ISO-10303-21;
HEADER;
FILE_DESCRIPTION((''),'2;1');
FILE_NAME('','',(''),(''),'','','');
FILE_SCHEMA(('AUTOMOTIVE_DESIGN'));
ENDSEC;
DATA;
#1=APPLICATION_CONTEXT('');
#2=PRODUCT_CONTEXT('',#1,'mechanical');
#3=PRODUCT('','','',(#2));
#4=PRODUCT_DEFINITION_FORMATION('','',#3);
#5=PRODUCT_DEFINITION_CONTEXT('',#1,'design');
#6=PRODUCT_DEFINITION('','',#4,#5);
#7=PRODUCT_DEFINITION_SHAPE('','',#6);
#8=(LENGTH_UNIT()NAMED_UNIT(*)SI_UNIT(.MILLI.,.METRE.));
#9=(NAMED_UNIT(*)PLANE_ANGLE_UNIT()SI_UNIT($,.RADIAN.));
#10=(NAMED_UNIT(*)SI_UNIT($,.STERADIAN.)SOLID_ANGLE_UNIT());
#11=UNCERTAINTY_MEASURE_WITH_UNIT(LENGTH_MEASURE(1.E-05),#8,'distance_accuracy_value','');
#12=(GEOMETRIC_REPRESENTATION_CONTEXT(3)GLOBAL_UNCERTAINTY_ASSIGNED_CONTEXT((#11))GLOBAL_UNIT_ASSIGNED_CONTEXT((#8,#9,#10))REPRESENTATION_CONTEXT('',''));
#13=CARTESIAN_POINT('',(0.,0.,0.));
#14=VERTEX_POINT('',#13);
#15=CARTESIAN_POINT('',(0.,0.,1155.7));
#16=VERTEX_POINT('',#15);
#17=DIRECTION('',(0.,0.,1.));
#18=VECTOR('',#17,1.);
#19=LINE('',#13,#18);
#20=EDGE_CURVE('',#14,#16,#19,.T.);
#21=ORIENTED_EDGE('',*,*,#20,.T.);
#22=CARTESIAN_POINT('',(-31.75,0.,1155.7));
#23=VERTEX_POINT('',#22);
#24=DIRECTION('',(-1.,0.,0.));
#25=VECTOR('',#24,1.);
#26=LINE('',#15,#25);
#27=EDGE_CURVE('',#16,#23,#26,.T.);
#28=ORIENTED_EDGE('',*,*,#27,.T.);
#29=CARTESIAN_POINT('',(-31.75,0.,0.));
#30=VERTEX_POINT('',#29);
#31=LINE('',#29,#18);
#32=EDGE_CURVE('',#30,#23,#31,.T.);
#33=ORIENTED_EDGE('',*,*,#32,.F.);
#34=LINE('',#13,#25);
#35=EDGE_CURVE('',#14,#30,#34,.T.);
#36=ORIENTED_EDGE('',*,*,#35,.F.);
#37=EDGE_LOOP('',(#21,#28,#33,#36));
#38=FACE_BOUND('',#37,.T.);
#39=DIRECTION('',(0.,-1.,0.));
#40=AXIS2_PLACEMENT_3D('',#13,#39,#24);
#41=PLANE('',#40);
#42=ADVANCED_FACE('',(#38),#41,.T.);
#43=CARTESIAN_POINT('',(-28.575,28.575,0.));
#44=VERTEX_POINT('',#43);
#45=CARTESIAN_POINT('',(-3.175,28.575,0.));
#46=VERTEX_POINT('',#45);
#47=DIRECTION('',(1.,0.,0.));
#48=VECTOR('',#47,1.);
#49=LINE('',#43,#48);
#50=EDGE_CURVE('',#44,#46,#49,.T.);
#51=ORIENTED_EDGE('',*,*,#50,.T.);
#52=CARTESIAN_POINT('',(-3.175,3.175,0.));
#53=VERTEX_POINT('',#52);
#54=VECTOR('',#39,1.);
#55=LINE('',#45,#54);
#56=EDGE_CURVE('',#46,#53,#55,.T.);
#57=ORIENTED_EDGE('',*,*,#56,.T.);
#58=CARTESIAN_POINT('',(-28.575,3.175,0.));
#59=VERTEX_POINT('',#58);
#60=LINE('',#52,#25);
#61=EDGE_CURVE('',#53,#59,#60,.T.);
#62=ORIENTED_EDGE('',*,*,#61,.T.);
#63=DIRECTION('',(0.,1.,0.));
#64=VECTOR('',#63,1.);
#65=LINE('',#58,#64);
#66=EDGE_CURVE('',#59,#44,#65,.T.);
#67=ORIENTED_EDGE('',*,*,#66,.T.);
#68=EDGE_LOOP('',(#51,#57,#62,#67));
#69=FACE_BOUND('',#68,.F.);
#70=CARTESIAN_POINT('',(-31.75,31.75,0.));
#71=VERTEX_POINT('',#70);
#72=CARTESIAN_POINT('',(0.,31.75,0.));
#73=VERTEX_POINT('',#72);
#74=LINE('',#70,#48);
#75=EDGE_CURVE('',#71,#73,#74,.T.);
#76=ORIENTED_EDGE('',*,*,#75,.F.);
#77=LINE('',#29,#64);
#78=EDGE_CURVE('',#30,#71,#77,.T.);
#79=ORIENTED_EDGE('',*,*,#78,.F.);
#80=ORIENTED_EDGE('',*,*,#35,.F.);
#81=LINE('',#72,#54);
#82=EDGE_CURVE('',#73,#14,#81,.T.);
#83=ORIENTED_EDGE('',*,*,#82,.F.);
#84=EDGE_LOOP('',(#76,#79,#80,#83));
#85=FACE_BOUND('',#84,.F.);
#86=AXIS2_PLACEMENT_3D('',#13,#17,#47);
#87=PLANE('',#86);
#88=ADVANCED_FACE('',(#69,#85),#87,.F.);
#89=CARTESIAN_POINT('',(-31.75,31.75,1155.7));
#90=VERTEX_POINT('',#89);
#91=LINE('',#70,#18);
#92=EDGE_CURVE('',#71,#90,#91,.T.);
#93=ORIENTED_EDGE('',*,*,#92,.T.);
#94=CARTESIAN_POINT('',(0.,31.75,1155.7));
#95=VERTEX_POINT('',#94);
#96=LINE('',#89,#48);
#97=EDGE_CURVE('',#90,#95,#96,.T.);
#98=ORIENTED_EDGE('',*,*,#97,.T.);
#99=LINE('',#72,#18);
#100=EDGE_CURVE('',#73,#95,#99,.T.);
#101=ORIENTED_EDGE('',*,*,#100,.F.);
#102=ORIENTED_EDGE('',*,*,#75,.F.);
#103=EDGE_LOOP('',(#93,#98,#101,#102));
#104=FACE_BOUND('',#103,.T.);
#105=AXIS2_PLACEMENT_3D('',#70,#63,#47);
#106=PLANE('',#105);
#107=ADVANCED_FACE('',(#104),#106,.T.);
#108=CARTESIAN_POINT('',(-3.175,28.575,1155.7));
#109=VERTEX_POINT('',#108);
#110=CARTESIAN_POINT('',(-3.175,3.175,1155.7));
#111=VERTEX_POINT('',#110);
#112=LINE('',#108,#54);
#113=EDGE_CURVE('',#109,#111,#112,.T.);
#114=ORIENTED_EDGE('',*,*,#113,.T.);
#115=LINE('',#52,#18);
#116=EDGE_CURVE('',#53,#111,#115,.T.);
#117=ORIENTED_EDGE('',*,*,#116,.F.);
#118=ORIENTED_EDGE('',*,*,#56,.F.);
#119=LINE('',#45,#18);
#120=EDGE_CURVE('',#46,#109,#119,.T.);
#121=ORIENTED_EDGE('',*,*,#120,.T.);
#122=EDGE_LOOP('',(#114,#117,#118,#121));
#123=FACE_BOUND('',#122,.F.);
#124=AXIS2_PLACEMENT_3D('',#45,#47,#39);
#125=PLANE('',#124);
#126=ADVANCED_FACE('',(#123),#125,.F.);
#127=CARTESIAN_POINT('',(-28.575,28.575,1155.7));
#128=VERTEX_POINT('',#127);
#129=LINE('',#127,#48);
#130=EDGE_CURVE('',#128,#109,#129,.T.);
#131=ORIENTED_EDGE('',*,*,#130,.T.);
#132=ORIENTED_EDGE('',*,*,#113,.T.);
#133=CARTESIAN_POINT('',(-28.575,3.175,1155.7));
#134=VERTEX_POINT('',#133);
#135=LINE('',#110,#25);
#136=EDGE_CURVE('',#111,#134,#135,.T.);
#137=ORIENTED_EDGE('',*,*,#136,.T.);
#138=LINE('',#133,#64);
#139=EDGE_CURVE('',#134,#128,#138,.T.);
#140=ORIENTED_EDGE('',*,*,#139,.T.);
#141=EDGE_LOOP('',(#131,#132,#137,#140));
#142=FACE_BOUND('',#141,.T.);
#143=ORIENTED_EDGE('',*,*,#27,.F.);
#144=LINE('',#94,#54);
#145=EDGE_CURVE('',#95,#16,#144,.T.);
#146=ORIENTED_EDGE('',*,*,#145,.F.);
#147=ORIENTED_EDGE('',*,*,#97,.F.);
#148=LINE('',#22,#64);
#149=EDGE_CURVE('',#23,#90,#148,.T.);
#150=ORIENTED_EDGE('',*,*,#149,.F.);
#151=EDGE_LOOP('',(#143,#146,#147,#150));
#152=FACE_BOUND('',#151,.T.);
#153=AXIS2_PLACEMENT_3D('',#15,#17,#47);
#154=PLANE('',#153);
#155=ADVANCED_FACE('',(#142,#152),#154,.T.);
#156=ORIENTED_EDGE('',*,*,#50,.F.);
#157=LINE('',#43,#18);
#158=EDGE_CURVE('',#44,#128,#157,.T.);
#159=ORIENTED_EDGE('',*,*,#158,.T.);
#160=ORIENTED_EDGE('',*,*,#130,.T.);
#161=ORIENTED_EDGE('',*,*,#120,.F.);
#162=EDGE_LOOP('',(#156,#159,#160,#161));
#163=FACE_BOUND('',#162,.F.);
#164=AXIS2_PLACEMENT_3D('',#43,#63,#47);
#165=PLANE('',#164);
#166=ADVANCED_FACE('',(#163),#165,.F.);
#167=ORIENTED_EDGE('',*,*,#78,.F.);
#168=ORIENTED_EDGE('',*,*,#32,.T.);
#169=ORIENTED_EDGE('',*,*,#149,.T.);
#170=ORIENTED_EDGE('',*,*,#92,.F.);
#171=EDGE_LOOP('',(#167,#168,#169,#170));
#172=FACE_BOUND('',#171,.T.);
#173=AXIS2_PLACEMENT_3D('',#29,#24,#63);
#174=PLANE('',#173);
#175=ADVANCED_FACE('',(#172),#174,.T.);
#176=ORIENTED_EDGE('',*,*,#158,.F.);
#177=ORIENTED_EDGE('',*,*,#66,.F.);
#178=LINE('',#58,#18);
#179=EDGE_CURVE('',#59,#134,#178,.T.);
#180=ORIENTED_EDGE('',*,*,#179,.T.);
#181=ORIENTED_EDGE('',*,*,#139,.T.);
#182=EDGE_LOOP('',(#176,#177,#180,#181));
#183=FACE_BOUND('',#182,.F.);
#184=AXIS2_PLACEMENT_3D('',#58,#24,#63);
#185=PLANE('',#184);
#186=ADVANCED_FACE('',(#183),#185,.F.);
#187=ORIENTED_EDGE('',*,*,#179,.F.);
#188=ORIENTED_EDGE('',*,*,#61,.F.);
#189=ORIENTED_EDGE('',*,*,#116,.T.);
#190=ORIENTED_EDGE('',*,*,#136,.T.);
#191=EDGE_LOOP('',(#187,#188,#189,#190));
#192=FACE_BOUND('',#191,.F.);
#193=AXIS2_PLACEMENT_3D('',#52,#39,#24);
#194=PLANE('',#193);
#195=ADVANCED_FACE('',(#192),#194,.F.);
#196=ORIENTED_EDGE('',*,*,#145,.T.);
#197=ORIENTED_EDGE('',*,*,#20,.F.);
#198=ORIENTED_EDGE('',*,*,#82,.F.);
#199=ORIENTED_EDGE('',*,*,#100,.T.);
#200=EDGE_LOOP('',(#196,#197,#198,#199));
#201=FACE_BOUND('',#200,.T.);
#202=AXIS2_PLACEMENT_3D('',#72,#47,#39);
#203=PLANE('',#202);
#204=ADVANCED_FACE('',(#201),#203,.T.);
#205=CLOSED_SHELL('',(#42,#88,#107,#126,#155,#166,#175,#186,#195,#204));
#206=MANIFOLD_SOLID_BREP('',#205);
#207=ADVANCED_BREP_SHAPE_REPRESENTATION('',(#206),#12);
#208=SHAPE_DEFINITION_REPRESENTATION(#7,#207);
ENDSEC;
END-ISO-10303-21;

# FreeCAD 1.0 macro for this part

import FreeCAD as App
import Part
import Sketcher
from FreeCAD import Vector
Q = App.Units.Quantity

doc = App.newDocument("Part")
body = doc.addObject("PartDesign::Body", "Body")

# Sketch on XY plane
sketch1 = body.newObject("Sketcher::SketchObject", "Sketch")
sketch1.AttachmentSupport = (doc.getObject("XY_Plane"), [""])
sketch1.MapMode = "FlatFace"
sketch1.addGeometry(Part.LineSegment(Vector(-32, 0, 0), Vector(0, 0, 0)), False)
sketch1.addGeometry(Part.LineSegment(Vector(0, 0, 0), Vector(0, 32, 0)), False)
sketch1.addGeometry(Part.LineSegment(Vector(0, 32, 0), Vector(-32, 32, 0)), False)
sketch1.addGeometry(Part.LineSegment(Vector(-32, 32, 0), Vector(-32, 0, 0)), False)
sketch1.addGeometry(Part.LineSegment(Vector(-3, 29, 0), Vector(-3, 3, 0)), False)
sketch1.addGeometry(Part.LineSegment(Vector(-3, 3, 0), Vector(-29, 3, 0)), False)
sketch1.addGeometry(Part.LineSegment(Vector(-29, 3, 0), Vector(-29, 29, 0)), False)
sketch1.addGeometry(Part.LineSegment(Vector(-29, 29, 0), Vector(-3, 29, 0)), False)
sketch1.addConstraint(Sketcher.Constraint("Coincident", 0, 2, 1, 1))
sketch1.addConstraint(Sketcher.Constraint("Coincident", 1, 2, 2, 1))
sketch1.addConstraint(Sketcher.Constraint("Coincident", 2, 2, 3, 1))
sketch1.addConstraint(Sketcher.Constraint("Coincident", 3, 2, 0, 1))
sketch1.addConstraint(Sketcher.Constraint("Coincident", 4, 2, 5, 1))
sketch1.addConstraint(Sketcher.Constraint("Coincident", 5, 2, 6, 1))
sketch1.addConstraint(Sketcher.Constraint("Coincident", 6, 2, 7, 1))
sketch1.addConstraint(Sketcher.Constraint("Coincident", 7, 2, 4, 1))
sketch1.addConstraint(Sketcher.Constraint("Horizontal", 0))
sketch1.addConstraint(Sketcher.Constraint("Vertical", 1))
sketch1.addConstraint(Sketcher.Constraint("Horizontal", 2))
sketch1.addConstraint(Sketcher.Constraint("Vertical", 3))
sketch1.addConstraint(Sketcher.Constraint("Vertical", 4))
sketch1.addConstraint(Sketcher.Constraint("Horizontal", 5))
sketch1.addConstraint(Sketcher.Constraint("Vertical", 6))
sketch1.addConstraint(Sketcher.Constraint("Horizontal", 7))
sketch1.addConstraint(Sketcher.Constraint("Coincident", 0, 2, -1, 1))
sketch1.addConstraint(Sketcher.Constraint("Equal", 2, 1))
sketch1.addConstraint(Sketcher.Constraint("Equal", 7, 4))
sketch1.addConstraint(Sketcher.Constraint("DistanceX", 0, 1, 0, 2, Q("1.25 in")))
sketch1.addConstraint(Sketcher.Constraint("DistanceX", 5, 2, 5, 1, Q("1 in")))
sketch1.addConstraint(Sketcher.Constraint("DistanceX", 4, 2, -1, 1, Q("0.125 in")))
sketch1.addConstraint(Sketcher.Constraint("DistanceY", -1, 1, 4, 2, Q("0.125 in")))
pad1 = body.newObject("PartDesign::Pad", "Pad")
pad1.Profile = sketch1
pad1.Length = Q("45.5 in")

doc.recompute()
